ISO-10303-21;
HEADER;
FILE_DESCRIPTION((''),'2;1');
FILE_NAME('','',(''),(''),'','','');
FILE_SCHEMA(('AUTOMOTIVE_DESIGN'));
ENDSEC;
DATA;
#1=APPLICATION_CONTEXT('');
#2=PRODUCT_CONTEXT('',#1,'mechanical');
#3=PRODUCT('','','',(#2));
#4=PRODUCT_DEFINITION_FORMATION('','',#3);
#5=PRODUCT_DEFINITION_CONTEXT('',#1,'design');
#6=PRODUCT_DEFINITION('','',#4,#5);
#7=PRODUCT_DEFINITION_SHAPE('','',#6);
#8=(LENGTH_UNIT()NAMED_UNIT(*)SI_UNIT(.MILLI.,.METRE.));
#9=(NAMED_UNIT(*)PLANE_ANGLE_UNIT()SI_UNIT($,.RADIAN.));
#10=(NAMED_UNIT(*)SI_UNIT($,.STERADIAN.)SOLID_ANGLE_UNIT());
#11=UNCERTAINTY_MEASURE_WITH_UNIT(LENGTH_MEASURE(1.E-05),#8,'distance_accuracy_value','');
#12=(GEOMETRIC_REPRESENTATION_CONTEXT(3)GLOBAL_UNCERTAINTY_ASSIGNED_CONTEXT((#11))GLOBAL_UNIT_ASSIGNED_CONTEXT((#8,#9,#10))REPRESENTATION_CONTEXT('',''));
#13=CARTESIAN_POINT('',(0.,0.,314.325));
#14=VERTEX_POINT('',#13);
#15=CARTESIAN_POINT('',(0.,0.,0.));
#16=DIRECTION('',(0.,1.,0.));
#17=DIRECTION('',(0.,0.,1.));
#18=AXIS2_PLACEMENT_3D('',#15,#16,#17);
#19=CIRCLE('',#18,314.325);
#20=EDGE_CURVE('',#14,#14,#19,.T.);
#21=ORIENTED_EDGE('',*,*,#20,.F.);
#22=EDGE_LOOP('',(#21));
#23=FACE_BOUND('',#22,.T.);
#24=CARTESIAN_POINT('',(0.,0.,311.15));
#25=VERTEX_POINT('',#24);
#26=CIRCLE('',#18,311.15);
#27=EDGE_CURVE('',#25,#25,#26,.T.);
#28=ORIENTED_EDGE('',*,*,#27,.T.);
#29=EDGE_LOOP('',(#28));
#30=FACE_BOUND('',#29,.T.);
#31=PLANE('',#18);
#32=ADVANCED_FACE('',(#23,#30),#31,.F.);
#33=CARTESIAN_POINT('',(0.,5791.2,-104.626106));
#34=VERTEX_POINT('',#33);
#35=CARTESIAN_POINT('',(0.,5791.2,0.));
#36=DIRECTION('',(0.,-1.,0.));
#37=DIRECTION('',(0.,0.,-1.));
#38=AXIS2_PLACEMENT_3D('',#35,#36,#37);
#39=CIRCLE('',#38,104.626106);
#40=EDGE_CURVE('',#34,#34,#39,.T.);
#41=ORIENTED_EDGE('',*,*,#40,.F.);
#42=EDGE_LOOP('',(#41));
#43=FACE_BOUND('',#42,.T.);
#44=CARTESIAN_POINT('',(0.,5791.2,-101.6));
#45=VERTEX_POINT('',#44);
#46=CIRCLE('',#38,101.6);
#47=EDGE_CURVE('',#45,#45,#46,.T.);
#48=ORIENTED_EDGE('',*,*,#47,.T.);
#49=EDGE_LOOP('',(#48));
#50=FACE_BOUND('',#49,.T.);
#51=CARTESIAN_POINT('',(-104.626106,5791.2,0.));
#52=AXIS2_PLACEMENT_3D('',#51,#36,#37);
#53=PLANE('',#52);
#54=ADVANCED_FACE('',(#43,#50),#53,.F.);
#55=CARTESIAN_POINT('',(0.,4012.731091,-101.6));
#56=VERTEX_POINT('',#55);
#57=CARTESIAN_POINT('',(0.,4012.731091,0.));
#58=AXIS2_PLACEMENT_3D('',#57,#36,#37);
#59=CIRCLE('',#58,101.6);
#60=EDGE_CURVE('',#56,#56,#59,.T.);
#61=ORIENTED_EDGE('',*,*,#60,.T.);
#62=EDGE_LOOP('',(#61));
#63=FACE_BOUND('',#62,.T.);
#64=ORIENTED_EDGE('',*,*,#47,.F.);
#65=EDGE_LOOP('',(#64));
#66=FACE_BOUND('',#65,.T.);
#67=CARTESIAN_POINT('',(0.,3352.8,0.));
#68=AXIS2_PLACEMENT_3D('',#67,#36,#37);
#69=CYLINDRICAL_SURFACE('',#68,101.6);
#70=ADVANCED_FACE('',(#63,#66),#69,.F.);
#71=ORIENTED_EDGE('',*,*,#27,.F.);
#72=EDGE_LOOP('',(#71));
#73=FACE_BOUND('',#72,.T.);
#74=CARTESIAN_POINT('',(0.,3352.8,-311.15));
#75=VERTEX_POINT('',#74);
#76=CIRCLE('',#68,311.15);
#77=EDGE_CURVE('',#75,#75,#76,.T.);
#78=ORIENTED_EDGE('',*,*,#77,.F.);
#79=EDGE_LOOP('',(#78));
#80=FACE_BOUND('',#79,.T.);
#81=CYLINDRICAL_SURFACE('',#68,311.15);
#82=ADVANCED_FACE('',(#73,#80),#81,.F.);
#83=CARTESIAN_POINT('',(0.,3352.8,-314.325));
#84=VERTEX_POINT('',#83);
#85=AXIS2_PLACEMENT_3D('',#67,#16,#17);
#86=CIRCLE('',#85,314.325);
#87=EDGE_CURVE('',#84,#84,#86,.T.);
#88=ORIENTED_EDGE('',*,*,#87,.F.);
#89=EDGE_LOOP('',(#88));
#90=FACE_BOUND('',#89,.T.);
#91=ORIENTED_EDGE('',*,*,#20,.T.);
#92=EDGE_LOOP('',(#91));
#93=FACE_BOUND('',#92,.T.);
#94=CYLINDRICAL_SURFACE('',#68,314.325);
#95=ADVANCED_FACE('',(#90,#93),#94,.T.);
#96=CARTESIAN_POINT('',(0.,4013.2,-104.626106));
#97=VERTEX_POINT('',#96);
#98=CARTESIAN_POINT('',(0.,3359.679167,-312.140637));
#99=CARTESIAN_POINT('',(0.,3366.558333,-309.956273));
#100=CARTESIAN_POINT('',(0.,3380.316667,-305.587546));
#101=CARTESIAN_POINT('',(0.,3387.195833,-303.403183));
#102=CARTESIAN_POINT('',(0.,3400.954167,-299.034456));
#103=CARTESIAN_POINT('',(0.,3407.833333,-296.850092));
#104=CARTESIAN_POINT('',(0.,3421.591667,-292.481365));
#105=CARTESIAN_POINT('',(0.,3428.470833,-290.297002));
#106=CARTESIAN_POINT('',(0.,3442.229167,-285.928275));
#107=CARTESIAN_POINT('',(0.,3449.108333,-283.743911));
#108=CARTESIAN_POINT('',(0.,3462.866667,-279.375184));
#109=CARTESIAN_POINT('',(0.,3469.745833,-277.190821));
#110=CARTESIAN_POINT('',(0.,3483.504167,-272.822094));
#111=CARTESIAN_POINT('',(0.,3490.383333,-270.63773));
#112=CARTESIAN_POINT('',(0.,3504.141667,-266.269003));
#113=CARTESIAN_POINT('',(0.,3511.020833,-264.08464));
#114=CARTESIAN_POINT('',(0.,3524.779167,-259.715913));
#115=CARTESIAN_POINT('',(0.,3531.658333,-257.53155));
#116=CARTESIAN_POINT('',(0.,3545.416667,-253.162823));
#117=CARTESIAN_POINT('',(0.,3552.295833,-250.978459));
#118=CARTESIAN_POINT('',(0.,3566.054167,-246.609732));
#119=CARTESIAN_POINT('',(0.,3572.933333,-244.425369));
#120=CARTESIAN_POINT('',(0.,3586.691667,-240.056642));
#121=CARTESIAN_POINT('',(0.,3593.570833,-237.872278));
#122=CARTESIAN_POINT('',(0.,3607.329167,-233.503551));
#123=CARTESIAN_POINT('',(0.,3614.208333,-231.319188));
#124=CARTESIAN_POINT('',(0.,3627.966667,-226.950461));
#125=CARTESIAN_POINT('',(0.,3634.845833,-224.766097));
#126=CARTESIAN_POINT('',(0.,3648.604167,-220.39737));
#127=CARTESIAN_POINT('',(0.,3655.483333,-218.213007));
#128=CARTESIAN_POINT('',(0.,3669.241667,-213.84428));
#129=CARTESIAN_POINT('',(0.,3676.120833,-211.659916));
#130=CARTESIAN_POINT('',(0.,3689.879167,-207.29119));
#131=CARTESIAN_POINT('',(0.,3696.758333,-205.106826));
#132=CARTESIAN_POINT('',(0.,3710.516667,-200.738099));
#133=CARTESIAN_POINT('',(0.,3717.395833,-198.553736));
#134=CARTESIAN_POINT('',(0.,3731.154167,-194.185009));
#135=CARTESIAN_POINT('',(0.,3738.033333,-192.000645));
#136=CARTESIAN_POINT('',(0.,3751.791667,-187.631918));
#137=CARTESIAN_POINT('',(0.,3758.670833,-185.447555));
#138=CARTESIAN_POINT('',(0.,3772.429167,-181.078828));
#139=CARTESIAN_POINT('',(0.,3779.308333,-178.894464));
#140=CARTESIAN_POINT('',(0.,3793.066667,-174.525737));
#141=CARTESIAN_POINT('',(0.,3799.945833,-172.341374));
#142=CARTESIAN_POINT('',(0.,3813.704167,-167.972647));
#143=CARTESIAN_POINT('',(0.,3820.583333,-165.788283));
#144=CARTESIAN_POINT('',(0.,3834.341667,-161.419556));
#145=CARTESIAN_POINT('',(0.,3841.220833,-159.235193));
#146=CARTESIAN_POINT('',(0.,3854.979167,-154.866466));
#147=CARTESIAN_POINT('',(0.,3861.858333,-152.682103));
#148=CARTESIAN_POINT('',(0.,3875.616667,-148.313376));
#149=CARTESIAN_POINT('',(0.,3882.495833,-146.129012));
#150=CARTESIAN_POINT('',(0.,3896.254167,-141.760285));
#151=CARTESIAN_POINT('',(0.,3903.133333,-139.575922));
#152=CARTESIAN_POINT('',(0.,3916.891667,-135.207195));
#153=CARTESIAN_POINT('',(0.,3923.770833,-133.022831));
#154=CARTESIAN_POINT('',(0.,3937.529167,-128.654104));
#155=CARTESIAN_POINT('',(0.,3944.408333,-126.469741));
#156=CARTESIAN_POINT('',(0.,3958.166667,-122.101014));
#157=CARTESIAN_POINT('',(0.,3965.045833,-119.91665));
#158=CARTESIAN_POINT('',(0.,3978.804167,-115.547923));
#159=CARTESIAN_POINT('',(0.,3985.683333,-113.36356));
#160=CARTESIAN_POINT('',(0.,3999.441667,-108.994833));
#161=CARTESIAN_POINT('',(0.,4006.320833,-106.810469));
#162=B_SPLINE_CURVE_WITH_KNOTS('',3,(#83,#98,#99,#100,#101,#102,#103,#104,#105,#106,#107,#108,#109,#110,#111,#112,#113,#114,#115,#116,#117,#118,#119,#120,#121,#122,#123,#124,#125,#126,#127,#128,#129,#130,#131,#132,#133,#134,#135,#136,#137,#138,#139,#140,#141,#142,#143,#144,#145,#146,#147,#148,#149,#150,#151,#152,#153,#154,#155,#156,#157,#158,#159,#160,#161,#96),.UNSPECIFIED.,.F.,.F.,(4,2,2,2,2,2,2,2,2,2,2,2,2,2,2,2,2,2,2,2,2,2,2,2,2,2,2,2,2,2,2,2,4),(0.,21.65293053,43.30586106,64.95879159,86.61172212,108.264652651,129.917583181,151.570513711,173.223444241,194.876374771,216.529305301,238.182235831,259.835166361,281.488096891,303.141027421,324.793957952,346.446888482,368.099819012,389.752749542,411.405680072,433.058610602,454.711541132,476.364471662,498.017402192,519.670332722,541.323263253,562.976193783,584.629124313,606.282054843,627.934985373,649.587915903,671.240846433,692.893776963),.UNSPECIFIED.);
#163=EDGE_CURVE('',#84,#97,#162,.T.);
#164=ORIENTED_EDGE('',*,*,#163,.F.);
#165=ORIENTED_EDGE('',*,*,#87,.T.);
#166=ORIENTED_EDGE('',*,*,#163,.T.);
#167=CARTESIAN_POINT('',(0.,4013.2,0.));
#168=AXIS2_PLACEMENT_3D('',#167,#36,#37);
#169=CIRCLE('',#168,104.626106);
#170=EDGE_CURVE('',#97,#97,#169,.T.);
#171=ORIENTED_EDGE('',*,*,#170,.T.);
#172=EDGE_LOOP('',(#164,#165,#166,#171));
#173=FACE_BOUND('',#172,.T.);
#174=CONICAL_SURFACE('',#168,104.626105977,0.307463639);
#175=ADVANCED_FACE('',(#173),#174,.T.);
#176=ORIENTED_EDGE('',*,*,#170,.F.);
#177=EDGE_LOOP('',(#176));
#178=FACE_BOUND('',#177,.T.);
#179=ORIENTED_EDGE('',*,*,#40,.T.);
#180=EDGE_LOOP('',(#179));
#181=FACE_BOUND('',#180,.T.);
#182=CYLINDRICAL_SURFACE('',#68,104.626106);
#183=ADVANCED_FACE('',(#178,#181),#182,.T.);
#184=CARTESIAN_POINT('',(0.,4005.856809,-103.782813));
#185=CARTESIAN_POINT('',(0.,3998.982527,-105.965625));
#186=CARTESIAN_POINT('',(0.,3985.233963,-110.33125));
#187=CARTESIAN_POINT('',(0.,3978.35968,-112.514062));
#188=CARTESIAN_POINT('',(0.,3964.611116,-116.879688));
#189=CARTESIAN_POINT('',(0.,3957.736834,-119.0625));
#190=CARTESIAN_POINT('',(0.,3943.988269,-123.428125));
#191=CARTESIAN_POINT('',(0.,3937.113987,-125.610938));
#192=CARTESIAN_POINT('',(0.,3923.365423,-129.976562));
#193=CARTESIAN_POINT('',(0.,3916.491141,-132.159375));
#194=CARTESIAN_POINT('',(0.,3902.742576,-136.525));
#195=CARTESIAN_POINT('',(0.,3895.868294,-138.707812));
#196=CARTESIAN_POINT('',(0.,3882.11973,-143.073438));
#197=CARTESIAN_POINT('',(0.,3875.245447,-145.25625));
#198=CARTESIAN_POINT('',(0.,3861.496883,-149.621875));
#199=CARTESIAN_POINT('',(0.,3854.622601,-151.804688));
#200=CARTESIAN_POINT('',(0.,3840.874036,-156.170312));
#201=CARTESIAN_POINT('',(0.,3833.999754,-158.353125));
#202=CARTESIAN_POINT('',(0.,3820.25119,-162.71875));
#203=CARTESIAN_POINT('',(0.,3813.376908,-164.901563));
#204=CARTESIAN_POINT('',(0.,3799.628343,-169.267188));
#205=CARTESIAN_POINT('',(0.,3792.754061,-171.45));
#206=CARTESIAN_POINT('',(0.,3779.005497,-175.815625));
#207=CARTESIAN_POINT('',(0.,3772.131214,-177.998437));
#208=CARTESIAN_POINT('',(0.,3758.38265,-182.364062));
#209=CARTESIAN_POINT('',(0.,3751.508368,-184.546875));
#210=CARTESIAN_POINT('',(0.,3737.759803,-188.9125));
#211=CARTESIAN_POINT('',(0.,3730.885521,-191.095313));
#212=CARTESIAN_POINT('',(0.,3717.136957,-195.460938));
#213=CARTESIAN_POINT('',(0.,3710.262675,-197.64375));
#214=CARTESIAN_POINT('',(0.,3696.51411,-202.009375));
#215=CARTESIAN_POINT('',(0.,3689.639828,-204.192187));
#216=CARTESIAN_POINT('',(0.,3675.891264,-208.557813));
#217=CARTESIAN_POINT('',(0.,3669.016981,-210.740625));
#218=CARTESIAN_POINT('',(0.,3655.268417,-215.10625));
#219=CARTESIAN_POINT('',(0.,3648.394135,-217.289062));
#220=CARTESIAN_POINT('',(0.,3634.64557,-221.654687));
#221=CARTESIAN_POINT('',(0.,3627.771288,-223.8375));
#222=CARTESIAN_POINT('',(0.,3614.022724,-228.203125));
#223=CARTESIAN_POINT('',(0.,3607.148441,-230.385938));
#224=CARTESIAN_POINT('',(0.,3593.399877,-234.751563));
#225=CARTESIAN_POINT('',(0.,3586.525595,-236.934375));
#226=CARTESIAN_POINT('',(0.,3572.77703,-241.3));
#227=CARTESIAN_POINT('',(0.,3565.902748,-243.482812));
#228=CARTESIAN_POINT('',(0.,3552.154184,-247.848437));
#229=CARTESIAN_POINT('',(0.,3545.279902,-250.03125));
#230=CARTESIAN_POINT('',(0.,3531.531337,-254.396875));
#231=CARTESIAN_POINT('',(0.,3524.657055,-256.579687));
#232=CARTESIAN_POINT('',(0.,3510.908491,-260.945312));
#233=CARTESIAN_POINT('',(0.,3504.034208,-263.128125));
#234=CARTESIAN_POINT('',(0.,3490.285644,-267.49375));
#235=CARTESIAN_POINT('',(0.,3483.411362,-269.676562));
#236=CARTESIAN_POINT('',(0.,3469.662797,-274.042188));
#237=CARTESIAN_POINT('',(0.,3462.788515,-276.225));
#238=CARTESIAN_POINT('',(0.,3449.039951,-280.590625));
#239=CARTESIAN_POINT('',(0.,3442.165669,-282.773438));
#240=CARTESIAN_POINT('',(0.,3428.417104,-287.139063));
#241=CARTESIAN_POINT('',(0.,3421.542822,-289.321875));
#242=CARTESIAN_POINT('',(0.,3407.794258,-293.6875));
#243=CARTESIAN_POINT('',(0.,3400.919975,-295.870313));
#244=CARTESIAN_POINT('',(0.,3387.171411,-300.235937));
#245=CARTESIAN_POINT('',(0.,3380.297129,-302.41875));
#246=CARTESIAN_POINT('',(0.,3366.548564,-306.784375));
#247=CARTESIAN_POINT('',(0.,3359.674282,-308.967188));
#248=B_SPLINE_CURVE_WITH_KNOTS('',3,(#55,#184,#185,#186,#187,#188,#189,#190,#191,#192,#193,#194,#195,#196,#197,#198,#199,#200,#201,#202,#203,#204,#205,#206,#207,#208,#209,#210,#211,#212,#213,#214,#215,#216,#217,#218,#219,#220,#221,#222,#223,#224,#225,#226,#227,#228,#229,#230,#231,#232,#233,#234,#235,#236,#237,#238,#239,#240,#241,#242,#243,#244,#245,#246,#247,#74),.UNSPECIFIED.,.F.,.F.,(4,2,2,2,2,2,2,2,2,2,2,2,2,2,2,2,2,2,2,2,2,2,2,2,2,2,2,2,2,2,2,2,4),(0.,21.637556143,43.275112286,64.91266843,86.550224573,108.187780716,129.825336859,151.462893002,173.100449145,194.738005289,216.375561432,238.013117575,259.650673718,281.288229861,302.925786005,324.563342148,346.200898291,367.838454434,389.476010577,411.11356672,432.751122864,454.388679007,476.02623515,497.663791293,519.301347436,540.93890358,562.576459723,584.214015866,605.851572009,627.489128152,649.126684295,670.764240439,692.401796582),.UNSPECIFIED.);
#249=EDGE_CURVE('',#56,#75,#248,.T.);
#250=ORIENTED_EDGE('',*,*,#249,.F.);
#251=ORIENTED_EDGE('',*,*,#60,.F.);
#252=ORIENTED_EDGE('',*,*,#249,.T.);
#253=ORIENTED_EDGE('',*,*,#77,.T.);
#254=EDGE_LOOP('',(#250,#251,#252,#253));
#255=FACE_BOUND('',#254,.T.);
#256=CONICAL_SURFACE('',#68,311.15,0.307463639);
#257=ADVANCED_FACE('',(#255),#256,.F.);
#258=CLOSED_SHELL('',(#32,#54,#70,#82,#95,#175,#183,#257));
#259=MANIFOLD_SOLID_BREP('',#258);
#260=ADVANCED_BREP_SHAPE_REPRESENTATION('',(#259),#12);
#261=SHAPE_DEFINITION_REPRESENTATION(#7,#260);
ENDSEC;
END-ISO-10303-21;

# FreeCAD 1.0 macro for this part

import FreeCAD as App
import Part
import Sketcher
Q = App.Units.Quantity


def add_polygon(sketch, points):
    """Adds a closed chain of lines whose ends are joined by coincident constraints."""
    first, n = sketch.GeometryCount, len(points)
    for a, b in zip(points, points[1:] + points[:1]):
        sketch.addGeometry(Part.LineSegment(App.Vector(*a, 0), App.Vector(*b, 0)), False)
    for i in range(n):
        sketch.addConstraint(Sketcher.Constraint("Coincident", first + i, 2, first + (i + 1) % n, 1))

doc = App.newDocument("Part")
body = doc.addObject("PartDesign::Body", "Body")

sketch1 = body.newObject("Sketcher::SketchObject", "Sketch")
sketch1.AttachmentSupport = (doc.getObject("XZ_Plane"), [""])
sketch1.MapMode = "FlatFace"
sketch1.addGeometry([
    Part.Circle(App.Vector(0, 0, 0), App.Vector(0, 0, 1), 314),
    Part.Circle(App.Vector(0, 0, 0), App.Vector(0, 0, 1), 311),
], False)
sketch1.addConstraint([
    Sketcher.Constraint("Coincident", 0, 3, -1, 1),
    Sketcher.Constraint("Coincident", 1, 3, -1, 1),
    Sketcher.Constraint("Diameter", 1, Q("24.5 in")),
    Sketcher.Constraint("Diameter", 0, Q("24.75 in")),
])
pad1 = body.newObject("PartDesign::Pad", "Pad")
pad1.Profile = sketch1
pad1.Length = Q("132 in")
pad1.Reversed = True

sketch2 = body.newObject("Sketcher::SketchObject", "Sketch001")
sketch2.AttachmentSupport = (doc.getObject("XY_Plane"), [""])
sketch2.MapMode = "FlatFace"
add_polygon(sketch2, [(-104.6, 4013.2), (-314.3, 3352.8), (-311.1, 3352.8), (-101.6, 4012.7), (-101.6, 5791.2), (-104.6, 5791.2)])
sketch2.addConstraint([
    Sketcher.Constraint("Horizontal", 1),
    Sketcher.Constraint("Vertical", 3),
    Sketcher.Constraint("Horizontal", 4),
    Sketcher.Constraint("Vertical", 5),
    Sketcher.Constraint("Parallel", 0, 2),
    Sketcher.Constraint("DistanceY", 5, 2, 5, 1, Q("70 in")),
    Sketcher.Constraint("DistanceY", -1, 1, 0, 2, Q("132 in")),
    Sketcher.Constraint("DistanceX", 2, 2, -1, 1, Q("4 in")),
    Sketcher.Constraint("DistanceY", -1, 1, 3, 2, Q("228 in")),
    Sketcher.Constraint("DistanceX", 1, 1, 1, 2, Q("0.125 in")),
    Sketcher.Constraint("DistanceX", 1, 2, -1, 1, Q("12.25 in")),
    Sketcher.Constraint("DistanceY", 3, 1, 3, 2, Q("1778.468909 mm")),
])
revolution = body.newObject("PartDesign::Revolution", "Revolution")
revolution.Profile = sketch2
revolution.ReferenceAxis = (sketch2, ["V_Axis"])
revolution.Angle = 360

doc.recompute()
